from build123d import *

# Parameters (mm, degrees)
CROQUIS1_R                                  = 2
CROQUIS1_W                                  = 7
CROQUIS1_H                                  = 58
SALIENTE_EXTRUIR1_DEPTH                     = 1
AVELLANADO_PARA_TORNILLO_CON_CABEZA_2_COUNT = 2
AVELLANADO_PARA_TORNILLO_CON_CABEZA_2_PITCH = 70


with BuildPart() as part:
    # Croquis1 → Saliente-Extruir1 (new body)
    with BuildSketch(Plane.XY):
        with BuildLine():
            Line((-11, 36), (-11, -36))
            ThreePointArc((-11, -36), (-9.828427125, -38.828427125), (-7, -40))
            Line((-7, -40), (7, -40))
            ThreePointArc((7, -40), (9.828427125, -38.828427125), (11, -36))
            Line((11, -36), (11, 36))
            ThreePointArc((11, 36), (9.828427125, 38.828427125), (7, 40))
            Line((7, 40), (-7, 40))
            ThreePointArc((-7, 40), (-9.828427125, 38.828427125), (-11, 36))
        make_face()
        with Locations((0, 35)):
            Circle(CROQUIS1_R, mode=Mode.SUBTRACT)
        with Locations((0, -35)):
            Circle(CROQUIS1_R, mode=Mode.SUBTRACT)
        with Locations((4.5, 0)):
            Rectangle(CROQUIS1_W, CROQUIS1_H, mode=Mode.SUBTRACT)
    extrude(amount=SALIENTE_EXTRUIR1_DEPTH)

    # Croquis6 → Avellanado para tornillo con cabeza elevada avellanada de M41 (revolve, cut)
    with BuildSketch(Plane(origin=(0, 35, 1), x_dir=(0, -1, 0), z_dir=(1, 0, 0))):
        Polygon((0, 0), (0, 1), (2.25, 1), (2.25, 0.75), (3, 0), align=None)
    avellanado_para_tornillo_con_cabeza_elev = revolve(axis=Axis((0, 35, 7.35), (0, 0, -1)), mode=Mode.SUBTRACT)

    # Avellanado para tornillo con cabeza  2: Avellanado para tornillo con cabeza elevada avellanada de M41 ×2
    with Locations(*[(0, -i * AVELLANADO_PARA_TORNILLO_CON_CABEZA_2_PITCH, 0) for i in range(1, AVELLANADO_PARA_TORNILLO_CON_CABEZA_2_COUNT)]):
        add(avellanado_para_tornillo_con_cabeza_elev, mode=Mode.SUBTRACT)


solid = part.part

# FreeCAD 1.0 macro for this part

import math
import FreeCAD as App
import Part
import Sketcher
Q = App.Units.Quantity

doc = App.newDocument("Part")
body = doc.addObject("PartDesign::Body", "Body")

sketch1 = body.newObject("Sketcher::SketchObject", "Sketch")
sketch1.AttachmentSupport = (doc.getObject("XY_Plane"), [""])
sketch1.MapMode = "FlatFace"
sketch1.addGeometry([
    Part.LineSegment(App.Vector(-11, 36, 0), App.Vector(-11, -36, 0)),
    Part.ArcOfCircle(Part.Circle(App.Vector(-7, -36, 0), App.Vector(0, 0, 1), 4), math.radians(180), math.radians(270)),
    Part.LineSegment(App.Vector(-7, -40, 0), App.Vector(7, -40, 0)),
    Part.ArcOfCircle(Part.Circle(App.Vector(7, -36, 0), App.Vector(0, 0, 1), 4), math.radians(-90), math.radians(0)),
    Part.LineSegment(App.Vector(11, -36, 0), App.Vector(11, 36, 0)),
    Part.ArcOfCircle(Part.Circle(App.Vector(7, 36, 0), App.Vector(0, 0, 1), 4), math.radians(0), math.radians(90)),
    Part.LineSegment(App.Vector(7, 40, 0), App.Vector(-7, 40, 0)),
    Part.ArcOfCircle(Part.Circle(App.Vector(-7, 36, 0), App.Vector(0, 0, 1), 4), math.radians(90), math.radians(180)),
    Part.Circle(App.Vector(0, -35, 0), App.Vector(0, 0, 1), 2),
    Part.Circle(App.Vector(0, 35, 0), App.Vector(0, 0, 1), 2),
    Part.LineSegment(App.Vector(8, -29, 0), App.Vector(1, -29, 0)),
    Part.LineSegment(App.Vector(1, -29, 0), App.Vector(1, 29, 0)),
    Part.LineSegment(App.Vector(1, 29, 0), App.Vector(8, 29, 0)),
    Part.LineSegment(App.Vector(8, 29, 0), App.Vector(8, -29, 0)),
], False)
sketch1.addConstraint([
    Sketcher.Constraint("Tangent", 0, 2, 1, 1),
    Sketcher.Constraint("Tangent", 1, 2, 2, 1),
    Sketcher.Constraint("Tangent", 2, 2, 3, 1),
    Sketcher.Constraint("Tangent", 3, 2, 4, 1),
    Sketcher.Constraint("Tangent", 4, 2, 5, 1),
    Sketcher.Constraint("Tangent", 5, 2, 6, 1),
    Sketcher.Constraint("Tangent", 6, 2, 7, 1),
    Sketcher.Constraint("Tangent", 7, 2, 0, 1),
    Sketcher.Constraint("Coincident", 10, 2, 11, 1),
    Sketcher.Constraint("Coincident", 11, 2, 12, 1),
    Sketcher.Constraint("Coincident", 12, 2, 13, 1),
    Sketcher.Constraint("Coincident", 13, 2, 10, 1),
    Sketcher.Constraint("Vertical", 0),
    Sketcher.Constraint("Horizontal", 2),
    Sketcher.Constraint("Vertical", 4),
    Sketcher.Constraint("Horizontal", 6),
    Sketcher.Constraint("Horizontal", 10),
    Sketcher.Constraint("Vertical", 11),
    Sketcher.Constraint("Horizontal", 12),
    Sketcher.Constraint("Vertical", 13),
    Sketcher.Constraint("Equal", 1, 3),
    Sketcher.Constraint("Equal", 3, 5),
    Sketcher.Constraint("Equal", 5, 7),
    Sketcher.Constraint("Equal", 8, 9),
    Sketcher.Constraint("Symmetric", 1, 3, 5, 3, -1, 1),
    Sketcher.Constraint("Symmetric", 8, 3, 9, 3, -1, 1),
    Sketcher.Constraint("PointOnObject", 8, 3, -2),
    Sketcher.Constraint("Diameter", 8, Q("4 mm")),
    Sketcher.Constraint("Radius", 1, Q("4 mm")),
    Sketcher.Constraint("DistanceX", 2, 1, 2, 2, Q("14 mm")),
    Sketcher.Constraint("DistanceX", 10, 2, 10, 1, Q("7 mm")),
    Sketcher.Constraint("DistanceY", 0, 2, 0, 1, Q("72 mm")),
    Sketcher.Constraint("DistanceY", 11, 1, 11, 2, Q("58 mm")),
    Sketcher.Constraint("DistanceY", 8, 3, -1, 1, Q("35 mm")),
    Sketcher.Constraint("DistanceX", -1, 1, 10, 2, Q("1 mm")),
    Sketcher.Constraint("DistanceY", 10, 2, -1, 1, Q("29 mm")),
])
pad1 = body.newObject("PartDesign::Pad", "Pad")
pad1.Profile = sketch1
pad1.Length = 1

sketch2 = body.newObject("Sketcher::SketchObject", "Sketch001")
sketch2.AttachmentSupport = (doc.getObject("YZ_Plane"), [""])
sketch2.MapMode = "FlatFace"
sketch2.addGeometry([
    Part.LineSegment(App.Vector(35, 0, 0), App.Vector(35, 1, 0)),
    Part.LineSegment(App.Vector(35, 1, 0), App.Vector(32, 1, 0)),
    Part.LineSegment(App.Vector(32, 1, 0), App.Vector(32.75, 0.25, 0)),
    Part.LineSegment(App.Vector(32.75, 0.25, 0), App.Vector(32.75, 0, 0)),
    Part.LineSegment(App.Vector(32.75, 0, 0), App.Vector(35, 0, 0)),
], False)
sketch2.addGeometry(Part.LineSegment(App.Vector(35, 1, 0), App.Vector(35, 0, 0)), True)
sketch2.addConstraint([
    Sketcher.Constraint("Coincident", 0, 2, 1, 1),
    Sketcher.Constraint("Coincident", 1, 2, 2, 1),
    Sketcher.Constraint("Coincident", 2, 2, 3, 1),
    Sketcher.Constraint("Coincident", 3, 2, 4, 1),
    Sketcher.Constraint("Coincident", 4, 2, 0, 1),
    Sketcher.Constraint("Vertical", 0),
    Sketcher.Constraint("Horizontal", 1),
    Sketcher.Constraint("Vertical", 3),
    Sketcher.Constraint("Horizontal", 4),
    Sketcher.Constraint("Vertical", 5),
    Sketcher.Constraint("Coincident", 5, 1, 0, 2),
    Sketcher.Constraint("PointOnObject", 3, 2, -1),
    Sketcher.Constraint("PointOnObject", 5, 2, -1),
    Sketcher.Constraint("DistanceX", 1, 2, 1, 1, Q("3 mm")),
    Sketcher.Constraint("DistanceY", 0, 1, 0, 2, Q("1 mm")),
    Sketcher.Constraint("Angle", 2, Q("-45 deg")),
    Sketcher.Constraint("DistanceX", -1, 1, 0, 2, Q("35 mm")),
    Sketcher.Constraint("DistanceX", 4, 1, 4, 2, Q("2.25 mm")),
])
groove = body.newObject("PartDesign::Groove", "Groove")
groove.Profile = sketch2
groove.ReferenceAxis = (sketch2, ["Axis0"])
groove.Angle = 360
doc.recompute()

linearpattern = body.newObject("PartDesign::LinearPattern", "LinearPattern")
linearpattern.Originals = [groove]
linearpattern.Direction = (doc.getObject("Y_Axis"), [""])
linearpattern.Mode = "offset"
linearpattern.Offset = 70
linearpattern.Occurrences = 2
linearpattern.Reversed = True
body.Tip = linearpattern

doc.recompute()
